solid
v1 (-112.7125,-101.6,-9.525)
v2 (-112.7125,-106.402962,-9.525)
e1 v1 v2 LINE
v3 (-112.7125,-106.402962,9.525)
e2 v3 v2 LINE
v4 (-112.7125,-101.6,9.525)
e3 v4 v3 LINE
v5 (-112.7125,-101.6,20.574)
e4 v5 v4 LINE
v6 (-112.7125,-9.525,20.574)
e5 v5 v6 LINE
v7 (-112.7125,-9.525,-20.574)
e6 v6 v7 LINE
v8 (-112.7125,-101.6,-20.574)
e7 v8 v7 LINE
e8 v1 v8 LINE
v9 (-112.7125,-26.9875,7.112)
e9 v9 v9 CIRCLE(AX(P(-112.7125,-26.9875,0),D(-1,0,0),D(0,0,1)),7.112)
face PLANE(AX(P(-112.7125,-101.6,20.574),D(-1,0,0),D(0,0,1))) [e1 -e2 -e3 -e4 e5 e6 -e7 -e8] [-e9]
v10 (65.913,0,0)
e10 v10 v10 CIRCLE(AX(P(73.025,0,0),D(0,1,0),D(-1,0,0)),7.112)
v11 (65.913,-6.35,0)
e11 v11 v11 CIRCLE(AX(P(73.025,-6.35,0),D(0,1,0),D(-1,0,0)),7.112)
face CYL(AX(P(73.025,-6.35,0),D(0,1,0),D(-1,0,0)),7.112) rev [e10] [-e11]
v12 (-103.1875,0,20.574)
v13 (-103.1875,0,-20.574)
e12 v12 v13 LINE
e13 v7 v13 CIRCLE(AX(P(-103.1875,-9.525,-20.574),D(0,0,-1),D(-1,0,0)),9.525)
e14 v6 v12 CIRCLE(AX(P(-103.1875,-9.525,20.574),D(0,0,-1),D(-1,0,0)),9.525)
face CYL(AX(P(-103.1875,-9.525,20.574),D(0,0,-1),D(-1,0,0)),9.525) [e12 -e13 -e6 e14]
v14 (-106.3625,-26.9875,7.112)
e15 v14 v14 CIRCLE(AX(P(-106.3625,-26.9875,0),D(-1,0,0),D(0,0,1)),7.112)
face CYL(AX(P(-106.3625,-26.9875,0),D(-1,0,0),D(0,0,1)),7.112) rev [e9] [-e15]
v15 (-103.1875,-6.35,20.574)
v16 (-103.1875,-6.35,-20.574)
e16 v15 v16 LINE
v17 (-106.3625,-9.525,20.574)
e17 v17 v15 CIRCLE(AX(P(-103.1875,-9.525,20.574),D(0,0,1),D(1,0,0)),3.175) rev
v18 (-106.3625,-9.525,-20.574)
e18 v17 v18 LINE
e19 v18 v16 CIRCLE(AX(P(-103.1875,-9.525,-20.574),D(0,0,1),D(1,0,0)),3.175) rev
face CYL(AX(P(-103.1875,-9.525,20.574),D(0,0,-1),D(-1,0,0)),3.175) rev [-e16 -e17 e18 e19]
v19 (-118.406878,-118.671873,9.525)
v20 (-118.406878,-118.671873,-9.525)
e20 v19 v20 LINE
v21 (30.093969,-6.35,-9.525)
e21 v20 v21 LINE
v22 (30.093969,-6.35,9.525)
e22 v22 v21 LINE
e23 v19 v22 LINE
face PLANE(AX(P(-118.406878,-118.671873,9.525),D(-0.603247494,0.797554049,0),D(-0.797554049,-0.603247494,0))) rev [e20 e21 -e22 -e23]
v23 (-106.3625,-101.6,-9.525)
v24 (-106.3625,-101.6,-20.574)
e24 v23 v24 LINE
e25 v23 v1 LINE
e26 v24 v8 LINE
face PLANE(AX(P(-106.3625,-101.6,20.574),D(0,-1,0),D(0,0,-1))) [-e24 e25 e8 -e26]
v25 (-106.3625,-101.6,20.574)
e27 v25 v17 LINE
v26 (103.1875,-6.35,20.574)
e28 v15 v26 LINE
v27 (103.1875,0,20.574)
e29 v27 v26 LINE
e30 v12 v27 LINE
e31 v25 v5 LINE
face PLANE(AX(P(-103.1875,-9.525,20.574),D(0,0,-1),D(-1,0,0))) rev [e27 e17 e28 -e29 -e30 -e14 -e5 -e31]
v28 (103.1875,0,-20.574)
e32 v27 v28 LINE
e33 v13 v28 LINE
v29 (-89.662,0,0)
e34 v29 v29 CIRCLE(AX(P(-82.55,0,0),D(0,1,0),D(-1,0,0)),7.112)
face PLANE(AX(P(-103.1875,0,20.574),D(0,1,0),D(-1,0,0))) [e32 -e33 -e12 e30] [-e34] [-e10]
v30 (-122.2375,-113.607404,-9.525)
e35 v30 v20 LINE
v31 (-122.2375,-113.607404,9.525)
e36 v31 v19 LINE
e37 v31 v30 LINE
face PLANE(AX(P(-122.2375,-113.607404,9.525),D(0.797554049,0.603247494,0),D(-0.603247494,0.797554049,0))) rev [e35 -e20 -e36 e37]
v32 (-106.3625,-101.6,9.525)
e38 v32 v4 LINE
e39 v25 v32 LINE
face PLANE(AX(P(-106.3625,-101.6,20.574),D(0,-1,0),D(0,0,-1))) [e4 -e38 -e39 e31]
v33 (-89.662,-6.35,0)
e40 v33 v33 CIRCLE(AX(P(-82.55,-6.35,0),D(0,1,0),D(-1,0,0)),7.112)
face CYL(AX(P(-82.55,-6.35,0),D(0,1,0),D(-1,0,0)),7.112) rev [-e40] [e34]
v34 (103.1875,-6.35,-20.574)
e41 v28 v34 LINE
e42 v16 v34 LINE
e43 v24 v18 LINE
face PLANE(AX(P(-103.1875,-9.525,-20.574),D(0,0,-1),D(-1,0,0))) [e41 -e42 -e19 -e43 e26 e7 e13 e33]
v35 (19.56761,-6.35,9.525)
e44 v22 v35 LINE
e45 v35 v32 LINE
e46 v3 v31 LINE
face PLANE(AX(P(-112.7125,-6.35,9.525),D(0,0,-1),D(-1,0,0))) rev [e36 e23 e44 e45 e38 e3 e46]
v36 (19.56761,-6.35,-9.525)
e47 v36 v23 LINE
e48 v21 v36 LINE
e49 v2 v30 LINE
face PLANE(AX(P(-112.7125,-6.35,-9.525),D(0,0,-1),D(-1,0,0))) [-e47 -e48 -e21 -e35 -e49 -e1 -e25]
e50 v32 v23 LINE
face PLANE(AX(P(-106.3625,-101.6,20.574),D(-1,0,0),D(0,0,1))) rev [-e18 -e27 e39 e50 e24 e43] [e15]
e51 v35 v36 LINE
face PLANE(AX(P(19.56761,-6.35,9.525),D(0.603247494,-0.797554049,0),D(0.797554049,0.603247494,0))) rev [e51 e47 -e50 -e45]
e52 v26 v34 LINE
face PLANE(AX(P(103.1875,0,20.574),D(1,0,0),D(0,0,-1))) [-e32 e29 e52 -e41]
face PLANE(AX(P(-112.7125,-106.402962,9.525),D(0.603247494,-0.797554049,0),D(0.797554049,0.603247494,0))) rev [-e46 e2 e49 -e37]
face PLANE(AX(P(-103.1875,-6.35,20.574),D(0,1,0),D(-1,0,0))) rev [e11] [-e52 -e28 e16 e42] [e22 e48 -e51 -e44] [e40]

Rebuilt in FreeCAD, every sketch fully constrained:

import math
import FreeCAD as App
import Part
import Sketcher
Q = App.Units.Quantity


def add_polygon(sketch, points):
    """Adds a closed chain of lines whose ends are joined by coincident constraints."""
    first, n = sketch.GeometryCount, len(points)
    for a, b in zip(points, points[1:] + points[:1]):
        sketch.addGeometry(Part.LineSegment(App.Vector(*a, 0), App.Vector(*b, 0)), False)
    for i in range(n):
        sketch.addConstraint(Sketcher.Constraint("Coincident", first + i, 2, first + (i + 1) % n, 1))

doc = App.newDocument("Part")
body = doc.addObject("PartDesign::Body", "Body")

sketch1 = body.newObject("Sketcher::SketchObject", "Sketch")
sketch1.AttachmentSupport = (doc.getObject("XY_Plane"), [""])
sketch1.MapMode = "FlatFace"
sketch1.addGeometry(Part.LineSegment(App.Vector(-112.7, -9.5, 0), App.Vector(-112.7, -101.6, 0)), False)
sketch1.addGeometry(Part.LineSegment(App.Vector(-112.7, -101.6, 0), App.Vector(-106.4, -101.6, 0)), False)
sketch1.addGeometry(Part.LineSegment(App.Vector(-106.4, -101.6, 0), App.Vector(-106.4, -9.5, 0)), False)
sketch1.addGeometry(Part.ArcOfCircle(Part.Circle(App.Vector(-103.2, -9.5, 0), App.Vector(0, 0, 1), 3.2), math.radians(90), math.radians(180)), False)
sketch1.addGeometry(Part.LineSegment(App.Vector(-103.2, -6.3, 0), App.Vector(103.2, -6.3, 0)), False)
sketch1.addGeometry(Part.LineSegment(App.Vector(103.2, -6.3, 0), App.Vector(103.2, 0, 0)), False)
sketch1.addGeometry(Part.LineSegment(App.Vector(103.2, 0, 0), App.Vector(-103.2, 0, 0)), False)
sketch1.addGeometry(Part.ArcOfCircle(Part.Circle(App.Vector(-103.2, -9.5, 0), App.Vector(0, 0, 1), 9.5), math.radians(90), math.radians(180)), False)
sketch1.addConstraint(Sketcher.Constraint("Coincident", 0, 2, 1, 1))
sketch1.addConstraint(Sketcher.Constraint("Coincident", 1, 2, 2, 1))
sketch1.addConstraint(Sketcher.Constraint("Tangent", 2, 2, 3, 2))
sketch1.addConstraint(Sketcher.Constraint("Tangent", 3, 1, 4, 1))
sketch1.addConstraint(Sketcher.Constraint("Coincident", 4, 2, 5, 1))
sketch1.addConstraint(Sketcher.Constraint("Coincident", 5, 2, 6, 1))
sketch1.addConstraint(Sketcher.Constraint("Tangent", 6, 2, 7, 1))
sketch1.addConstraint(Sketcher.Constraint("Tangent", 7, 2, 0, 1))
sketch1.addConstraint(Sketcher.Constraint("Vertical", 0))
sketch1.addConstraint(Sketcher.Constraint("Horizontal", 1))
sketch1.addConstraint(Sketcher.Constraint("Vertical", 2))
sketch1.addConstraint(Sketcher.Constraint("Horizontal", 4))
sketch1.addConstraint(Sketcher.Constraint("Vertical", 5))
sketch1.addConstraint(Sketcher.Constraint("Horizontal", 6))
sketch1.addConstraint(Sketcher.Constraint("Coincident", 7, 3, 3, 3))
sketch1.addConstraint(Sketcher.Constraint("Symmetric", 5, 2, 6, 2, -1, 1))
sketch1.addConstraint(Sketcher.Constraint("DistanceY", 0, 2, -1, 1, Q("4 in")))
sketch1.addConstraint(Sketcher.Constraint("Radius", 3, Q("0.125 in")))
sketch1.addConstraint(Sketcher.Constraint("Radius", 7, Q("0.375 in")))
sketch1.addConstraint(Sketcher.Constraint("DistanceX", 4, 1, 4, 2, Q("8.125 in")))
pad1 = body.newObject("PartDesign::Pad", "Pad")
pad1.Profile = sketch1
pad1.Length = Q("1.62 in")
pad1.Midplane = True

sketch2 = body.newObject("Sketcher::SketchObject", "Sketch001")
sketch2.AttachmentSupport = (doc.getObject("XY_Plane"), [""])
sketch2.MapMode = "FlatFace"
add_polygon(sketch2, [(19.6, -6.3), (-106.4, -101.6), (-112.7, -101.6), (-112.7, -106.4), (-122.2, -113.6), (-118.4, -118.7), (30.1, -6.3)])
sketch2.addConstraint(Sketcher.Constraint("Horizontal", 1))
sketch2.addConstraint(Sketcher.Constraint("Vertical", 2))
sketch2.addConstraint(Sketcher.Constraint("Horizontal", 6))
sketch2.addConstraint(Sketcher.Constraint("Parallel", 0, 3))
sketch2.addConstraint(Sketcher.Constraint("Perpendicular", 3, 4))
sketch2.addConstraint(Sketcher.Constraint("Perpendicular", 4, 5))
sketch2.addConstraint(Sketcher.Constraint("DistanceY", 0, 2, -1, 1, Q("4 in")))
sketch2.addConstraint(Sketcher.Constraint("DistanceX", 1, 2, 1, 1, Q("0.25 in")))
sketch2.addConstraint(Sketcher.Constraint("Distance", 4, Q("0.25 in")))
sketch2.addConstraint(Sketcher.Constraint("DistanceY", 5, 2, -1, 1, Q("0.25 in")))
sketch2.addConstraint(Sketcher.Constraint("DistanceX", 0, 2, -1, 1, Q("4.1875 in")))
sketch2.addConstraint(Sketcher.Constraint("DistanceX", 3, 2, -1, 1, Q("4.8125 in")))
sketch2.addConstraint(Sketcher.Constraint("DistanceX", 6, 2, 6, 1, 10.52636))
sketch2.addConstraint(Sketcher.Constraint("DistanceY", 2, 2, 2, 1, 4.802962))
pad2 = body.newObject("PartDesign::Pad", "Pad001")
pad2.Profile = sketch2
pad2.Length = Q("0.75 in")
pad2.Midplane = True

sketch3 = body.newObject("Sketcher::SketchObject", "Sketch002")
sketch3.AttachmentSupport = (doc.getObject("XZ_Plane"), [""])
sketch3.MapMode = "FlatFace"
sketch3.addGeometry(Part.Circle(App.Vector(-83, 0, 0), App.Vector(0, 0, 1), 7), False)
sketch3.addGeometry(Part.Circle(App.Vector(73, 0, 0), App.Vector(0, 0, 1), 7), False)
sketch3.addConstraint(Sketcher.Constraint("Equal", 0, 1))
sketch3.addConstraint(Sketcher.Constraint("PointOnObject", 0, 3, -1))
sketch3.addConstraint(Sketcher.Constraint("PointOnObject", 1, 3, -1))
sketch3.addConstraint(Sketcher.Constraint("Diameter", 0, Q("0.56 in")))
sketch3.addConstraint(Sketcher.Constraint("DistanceX", 0, 3, -1, 1, Q("3.25 in")))
sketch3.addConstraint(Sketcher.Constraint("DistanceX", -1, 1, 1, 3, Q("2.875 in")))
pocket1 = body.newObject("PartDesign::Pocket", "Pocket")
pocket1.Profile = sketch3
pocket1.Length = Q("0.25 in")
pocket1.Reversed = True

sketch4 = body.newObject("Sketcher::SketchObject", "Sketch003")
sketch4.AttachmentSupport = (doc.getObject("YZ_Plane"), [""])
sketch4.MapMode = "FlatFace"
sketch4.AttachmentOffset = App.Placement(App.Vector(0, 0, -4.4375 * 25.4), App.Rotation())
sketch4.addGeometry(Part.Circle(App.Vector(-27, 0, 0), App.Vector(0, 0, 1), 7), False)
sketch4.addConstraint(Sketcher.Constraint("PointOnObject", 0, 3, -1))
sketch4.addConstraint(Sketcher.Constraint("Diameter", 0, Q("0.56 in")))
sketch4.addConstraint(Sketcher.Constraint("DistanceX", 0, 3, -1, 1, Q("1.0625 in")))
pocket2 = body.newObject("PartDesign::Pocket", "Pocket001")
pocket2.Profile = sketch4
pocket2.Length = Q("0.25 in")
pocket2.Reversed = True

doc.recompute()
